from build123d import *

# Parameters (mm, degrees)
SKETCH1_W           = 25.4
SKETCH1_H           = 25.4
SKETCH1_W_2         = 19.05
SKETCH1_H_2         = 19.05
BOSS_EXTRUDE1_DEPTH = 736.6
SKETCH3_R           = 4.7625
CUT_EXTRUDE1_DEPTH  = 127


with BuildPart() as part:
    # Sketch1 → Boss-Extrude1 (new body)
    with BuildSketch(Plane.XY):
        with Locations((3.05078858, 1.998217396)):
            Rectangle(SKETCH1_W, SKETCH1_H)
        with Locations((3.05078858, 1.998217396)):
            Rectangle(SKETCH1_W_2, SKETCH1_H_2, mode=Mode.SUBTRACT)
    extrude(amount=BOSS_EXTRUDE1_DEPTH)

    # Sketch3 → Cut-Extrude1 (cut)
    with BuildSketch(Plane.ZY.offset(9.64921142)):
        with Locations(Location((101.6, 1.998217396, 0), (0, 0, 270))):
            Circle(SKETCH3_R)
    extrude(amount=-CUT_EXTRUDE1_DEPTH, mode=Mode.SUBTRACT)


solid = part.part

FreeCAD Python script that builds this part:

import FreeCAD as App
import Part
import Sketcher
from FreeCAD import Vector
Q = App.Units.Quantity

doc = App.newDocument("Part")
body = doc.addObject("PartDesign::Body", "Body")

# Sketch on XY plane
sketch1 = body.newObject("Sketcher::SketchObject", "Sketch")
sketch1.AttachmentSupport = (doc.getObject("XY_Plane"), [""])
sketch1.MapMode = "FlatFace"
sketch1.addGeometry([
    Part.LineSegment(Vector(-10, 15, 0), Vector(-10, -11, 0)),  # 0
    Part.LineSegment(Vector(-10, -11, 0), Vector(16, -11, 0)),  # 1
    Part.LineSegment(Vector(16, -11, 0), Vector(16, 15, 0)),  # 2
    Part.LineSegment(Vector(16, 15, 0), Vector(-10, 15, 0)),  # 3
    Part.LineSegment(Vector(13, -8, 0), Vector(-6, -8, 0)),  # 4
    Part.LineSegment(Vector(-6, -8, 0), Vector(-6, 12, 0)),  # 5
    Part.LineSegment(Vector(-6, 12, 0), Vector(13, 12, 0)),  # 6
    Part.LineSegment(Vector(13, 12, 0), Vector(13, -8, 0)),  # 7
], False)
sketch1.addConstraint([
    Sketcher.Constraint("Coincident", 0, 2, 1, 1),
    Sketcher.Constraint("Coincident", 1, 2, 2, 1),
    Sketcher.Constraint("Coincident", 2, 2, 3, 1),
    Sketcher.Constraint("Coincident", 3, 2, 0, 1),
    Sketcher.Constraint("Coincident", 4, 2, 5, 1),
    Sketcher.Constraint("Coincident", 5, 2, 6, 1),
    Sketcher.Constraint("Coincident", 6, 2, 7, 1),
    Sketcher.Constraint("Coincident", 7, 2, 4, 1),
    Sketcher.Constraint("Vertical", 0),
    Sketcher.Constraint("Horizontal", 1),
    Sketcher.Constraint("Vertical", 2),
    Sketcher.Constraint("Horizontal", 3),
    Sketcher.Constraint("Horizontal", 4),
    Sketcher.Constraint("Vertical", 5),
    Sketcher.Constraint("Horizontal", 6),
    Sketcher.Constraint("Vertical", 7),
    Sketcher.Constraint("Equal", 3, 0),
    Sketcher.Constraint("Equal", 6, 5),
    Sketcher.Constraint("DistanceX", 1, 1, 1, 2, Q("1 in")),
    Sketcher.Constraint("DistanceX", 4, 2, 4, 1, Q("0.75 in")),
    Sketcher.Constraint("DistanceX", 0, 2, 4, 2, Q("0.125 in")),
    Sketcher.Constraint("DistanceY", 0, 2, 4, 2, Q("0.125 in")),
    Sketcher.Constraint("DistanceX", 0, 2, -1, 1, 9.649211),
    Sketcher.Constraint("DistanceY", 0, 2, -1, 1, 10.701783),
])
pad1 = body.newObject("PartDesign::Pad", "Pad")
pad1.Profile = sketch1
pad1.Length = Q("29 in")

# Sketch on YZ plane
sketch2 = body.newObject("Sketcher::SketchObject", "Sketch001")
sketch2.AttachmentSupport = (doc.getObject("YZ_Plane"), [""])
sketch2.MapMode = "FlatFace"
sketch2.AttachmentOffset = App.Placement(Vector(0, 0, -9.649211), App.Rotation())
sketch2.addGeometry(Part.Circle(Vector(2, 101.6, 0), Vector(0, 0, 1), 4.8), False)
sketch2.addConstraint([
    Sketcher.Constraint("Diameter", 0, Q("0.375 in")),
    Sketcher.Constraint("DistanceY", -1, 1, 0, 3, Q("4 in")),
    Sketcher.Constraint("DistanceX", -1, 1, 0, 3, 1.998217),
])
pocket1 = body.newObject("PartDesign::Pocket", "Pocket")
pocket1.Profile = sketch2
pocket1.Length = Q("5 in")
pocket1.Reversed = True

doc.recompute()
